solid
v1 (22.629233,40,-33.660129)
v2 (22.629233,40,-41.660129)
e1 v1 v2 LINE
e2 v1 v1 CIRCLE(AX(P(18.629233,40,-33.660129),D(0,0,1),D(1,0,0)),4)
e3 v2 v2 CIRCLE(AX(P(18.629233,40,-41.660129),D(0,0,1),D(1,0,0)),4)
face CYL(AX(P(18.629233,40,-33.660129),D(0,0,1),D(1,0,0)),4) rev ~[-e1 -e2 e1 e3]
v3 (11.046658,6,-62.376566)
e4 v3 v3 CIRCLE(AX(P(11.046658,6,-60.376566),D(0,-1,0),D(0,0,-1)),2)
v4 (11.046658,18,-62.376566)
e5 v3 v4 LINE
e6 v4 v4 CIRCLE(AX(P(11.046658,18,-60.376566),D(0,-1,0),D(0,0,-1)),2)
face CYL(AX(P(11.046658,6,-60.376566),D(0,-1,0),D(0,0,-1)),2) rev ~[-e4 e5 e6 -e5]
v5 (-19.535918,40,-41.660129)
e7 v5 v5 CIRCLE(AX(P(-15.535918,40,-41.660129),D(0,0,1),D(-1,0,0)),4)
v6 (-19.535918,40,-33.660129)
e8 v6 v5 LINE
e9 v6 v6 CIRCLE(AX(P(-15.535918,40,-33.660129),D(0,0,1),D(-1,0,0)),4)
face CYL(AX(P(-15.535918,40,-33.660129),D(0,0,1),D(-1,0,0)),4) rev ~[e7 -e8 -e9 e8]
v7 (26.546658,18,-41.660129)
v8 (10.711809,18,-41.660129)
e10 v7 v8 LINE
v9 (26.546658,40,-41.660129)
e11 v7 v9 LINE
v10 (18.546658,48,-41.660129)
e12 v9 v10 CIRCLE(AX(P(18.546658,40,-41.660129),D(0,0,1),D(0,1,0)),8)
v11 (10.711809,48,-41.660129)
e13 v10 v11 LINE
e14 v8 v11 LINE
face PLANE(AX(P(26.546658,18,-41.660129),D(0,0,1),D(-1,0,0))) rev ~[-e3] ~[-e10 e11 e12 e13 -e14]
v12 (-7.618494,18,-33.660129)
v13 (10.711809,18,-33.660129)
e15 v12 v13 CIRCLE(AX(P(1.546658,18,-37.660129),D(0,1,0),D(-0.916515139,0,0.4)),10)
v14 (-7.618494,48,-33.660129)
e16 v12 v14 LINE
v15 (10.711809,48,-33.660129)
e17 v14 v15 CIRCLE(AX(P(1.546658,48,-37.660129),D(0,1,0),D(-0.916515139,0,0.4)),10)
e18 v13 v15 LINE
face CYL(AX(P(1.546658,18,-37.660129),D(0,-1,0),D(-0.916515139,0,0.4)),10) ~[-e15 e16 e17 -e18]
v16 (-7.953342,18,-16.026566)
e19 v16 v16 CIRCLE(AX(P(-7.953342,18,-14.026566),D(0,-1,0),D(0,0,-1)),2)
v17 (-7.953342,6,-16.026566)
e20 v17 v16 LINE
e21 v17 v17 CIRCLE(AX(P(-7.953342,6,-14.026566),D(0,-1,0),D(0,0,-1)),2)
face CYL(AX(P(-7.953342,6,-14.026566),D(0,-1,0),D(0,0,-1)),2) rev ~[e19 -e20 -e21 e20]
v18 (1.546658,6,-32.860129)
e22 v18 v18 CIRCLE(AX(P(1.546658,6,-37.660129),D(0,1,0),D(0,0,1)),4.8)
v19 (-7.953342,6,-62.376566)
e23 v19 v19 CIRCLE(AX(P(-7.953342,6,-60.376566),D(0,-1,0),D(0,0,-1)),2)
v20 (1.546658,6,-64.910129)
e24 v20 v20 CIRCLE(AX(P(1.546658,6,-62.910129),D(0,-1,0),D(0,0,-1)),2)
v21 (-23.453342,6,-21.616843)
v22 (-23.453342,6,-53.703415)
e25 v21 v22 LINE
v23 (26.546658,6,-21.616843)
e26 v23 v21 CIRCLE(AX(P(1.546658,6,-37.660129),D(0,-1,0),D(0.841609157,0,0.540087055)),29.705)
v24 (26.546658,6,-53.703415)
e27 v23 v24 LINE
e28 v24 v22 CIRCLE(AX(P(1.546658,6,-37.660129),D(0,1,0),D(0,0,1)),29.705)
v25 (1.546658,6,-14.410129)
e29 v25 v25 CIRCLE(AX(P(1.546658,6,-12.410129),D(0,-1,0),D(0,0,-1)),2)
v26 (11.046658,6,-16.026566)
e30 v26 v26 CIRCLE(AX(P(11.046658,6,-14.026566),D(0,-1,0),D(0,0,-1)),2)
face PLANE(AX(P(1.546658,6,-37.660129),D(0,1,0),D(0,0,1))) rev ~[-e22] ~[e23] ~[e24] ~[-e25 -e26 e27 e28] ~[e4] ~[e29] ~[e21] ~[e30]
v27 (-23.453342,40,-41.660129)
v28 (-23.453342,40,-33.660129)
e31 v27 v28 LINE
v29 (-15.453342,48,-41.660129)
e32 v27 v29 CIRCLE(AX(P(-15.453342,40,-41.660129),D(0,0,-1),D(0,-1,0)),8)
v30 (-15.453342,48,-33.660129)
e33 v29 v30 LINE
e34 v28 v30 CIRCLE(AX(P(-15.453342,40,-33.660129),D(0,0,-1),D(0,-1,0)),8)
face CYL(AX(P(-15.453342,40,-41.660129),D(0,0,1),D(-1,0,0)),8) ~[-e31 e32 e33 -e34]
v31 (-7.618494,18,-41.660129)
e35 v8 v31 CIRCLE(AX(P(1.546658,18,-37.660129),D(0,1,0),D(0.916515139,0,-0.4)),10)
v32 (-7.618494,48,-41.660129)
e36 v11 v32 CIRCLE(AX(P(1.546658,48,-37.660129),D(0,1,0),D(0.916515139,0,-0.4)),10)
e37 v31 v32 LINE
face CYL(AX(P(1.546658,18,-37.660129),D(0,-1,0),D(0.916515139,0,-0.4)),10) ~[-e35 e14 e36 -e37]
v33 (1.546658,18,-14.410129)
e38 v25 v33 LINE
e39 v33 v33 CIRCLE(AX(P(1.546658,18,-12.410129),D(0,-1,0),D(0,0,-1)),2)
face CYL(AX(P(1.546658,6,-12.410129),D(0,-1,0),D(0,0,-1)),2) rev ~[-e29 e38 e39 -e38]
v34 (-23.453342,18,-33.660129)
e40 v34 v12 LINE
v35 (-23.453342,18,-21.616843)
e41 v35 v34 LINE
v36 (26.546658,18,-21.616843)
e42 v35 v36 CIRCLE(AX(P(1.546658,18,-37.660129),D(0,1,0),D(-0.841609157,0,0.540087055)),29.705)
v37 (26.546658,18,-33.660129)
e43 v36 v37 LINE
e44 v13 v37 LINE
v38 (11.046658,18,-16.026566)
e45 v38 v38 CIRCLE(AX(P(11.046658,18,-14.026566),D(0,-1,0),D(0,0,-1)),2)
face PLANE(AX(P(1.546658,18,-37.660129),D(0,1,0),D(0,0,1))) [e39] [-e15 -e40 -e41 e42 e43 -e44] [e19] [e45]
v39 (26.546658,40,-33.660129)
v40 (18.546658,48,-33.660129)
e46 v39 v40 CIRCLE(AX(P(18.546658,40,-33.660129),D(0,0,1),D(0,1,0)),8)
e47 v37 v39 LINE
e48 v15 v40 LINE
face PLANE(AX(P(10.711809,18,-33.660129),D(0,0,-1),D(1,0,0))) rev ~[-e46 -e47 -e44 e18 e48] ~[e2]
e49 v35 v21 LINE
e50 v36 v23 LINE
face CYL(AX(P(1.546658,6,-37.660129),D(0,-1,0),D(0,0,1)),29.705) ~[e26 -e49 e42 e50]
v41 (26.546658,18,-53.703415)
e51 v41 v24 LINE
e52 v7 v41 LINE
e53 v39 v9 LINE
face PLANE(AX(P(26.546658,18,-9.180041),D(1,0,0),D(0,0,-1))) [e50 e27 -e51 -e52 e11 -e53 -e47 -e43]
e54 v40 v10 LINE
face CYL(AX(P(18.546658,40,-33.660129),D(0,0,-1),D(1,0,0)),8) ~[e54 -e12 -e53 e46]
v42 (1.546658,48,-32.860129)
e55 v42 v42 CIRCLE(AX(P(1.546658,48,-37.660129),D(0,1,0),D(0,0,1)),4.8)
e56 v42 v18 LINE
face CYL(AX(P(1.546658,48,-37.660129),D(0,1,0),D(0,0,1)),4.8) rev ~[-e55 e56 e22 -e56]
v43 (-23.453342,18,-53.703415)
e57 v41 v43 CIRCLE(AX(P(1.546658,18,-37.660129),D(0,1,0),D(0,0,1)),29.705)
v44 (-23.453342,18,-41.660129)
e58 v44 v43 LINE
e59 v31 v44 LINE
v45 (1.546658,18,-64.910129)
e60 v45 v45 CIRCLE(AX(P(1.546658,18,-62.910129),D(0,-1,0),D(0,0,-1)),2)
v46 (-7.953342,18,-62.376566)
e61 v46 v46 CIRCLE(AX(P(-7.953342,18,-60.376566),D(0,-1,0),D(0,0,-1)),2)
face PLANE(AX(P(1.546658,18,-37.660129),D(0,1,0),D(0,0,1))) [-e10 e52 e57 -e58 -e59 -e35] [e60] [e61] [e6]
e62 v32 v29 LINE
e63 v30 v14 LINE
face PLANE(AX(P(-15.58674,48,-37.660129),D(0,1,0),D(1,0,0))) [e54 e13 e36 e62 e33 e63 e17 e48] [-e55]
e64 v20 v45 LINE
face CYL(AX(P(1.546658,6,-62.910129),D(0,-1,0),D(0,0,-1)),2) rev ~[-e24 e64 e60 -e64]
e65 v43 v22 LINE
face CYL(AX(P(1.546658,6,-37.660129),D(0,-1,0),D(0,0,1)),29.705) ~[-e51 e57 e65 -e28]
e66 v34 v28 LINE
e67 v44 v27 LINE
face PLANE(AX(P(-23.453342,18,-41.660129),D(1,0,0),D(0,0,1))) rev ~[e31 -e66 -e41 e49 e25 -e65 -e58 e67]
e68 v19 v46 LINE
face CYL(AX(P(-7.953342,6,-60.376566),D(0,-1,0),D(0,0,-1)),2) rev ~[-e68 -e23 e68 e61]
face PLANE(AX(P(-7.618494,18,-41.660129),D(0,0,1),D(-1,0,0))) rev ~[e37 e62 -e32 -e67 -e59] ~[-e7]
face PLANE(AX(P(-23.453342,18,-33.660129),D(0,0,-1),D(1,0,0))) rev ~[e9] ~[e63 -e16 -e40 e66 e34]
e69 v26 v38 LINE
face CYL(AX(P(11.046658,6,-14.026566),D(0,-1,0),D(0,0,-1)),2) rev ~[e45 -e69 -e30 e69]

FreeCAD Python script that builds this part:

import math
import FreeCAD as App
import Part
import Sketcher

V = App.Vector
Q = App.Units.Quantity


def edges_at(feature, points):
    """Names of the edges that pass closest to the given points."""
    edges = feature.Shape.Edges
    near = lambda p: min(range(len(edges)), key=lambda i: edges[i].distToShape(Part.Vertex(*p))[0])
    return sorted({f"Edge{near(p) + 1}" for p in points})


def add_polygon(sketch, points):
    """Adds a closed chain of lines whose ends are joined by coincident constraints."""
    first, n = sketch.GeometryCount, len(points)
    for a, b in zip(points, points[1:] + points[:1]):
        sketch.addGeometry(Part.LineSegment(App.Vector(*a, 0), App.Vector(*b, 0)), False)
    for i in range(n):
        sketch.addConstraint(Sketcher.Constraint("Coincident", first + i, 2, first + (i + 1) % n, 1))

doc = App.newDocument("Part")
body = doc.addObject("PartDesign::Body", "Body")

# Sketch on XZ plane
sketch1 = body.newObject("Sketcher::SketchObject", "Sketch")
sketch1.AttachmentSupport = (doc.getObject("XZ_Plane"), [""])
sketch1.MapMode = "FlatFace"
sketch1.AttachmentOffset = App.Placement(V(0, 0, -6), App.Rotation())
sketch1.addGeometry(Part.Circle(V(2, -38, 0), V(0, 0, 1), 30), False)
sketch1.addConstraint([
    Sketcher.Constraint("Diameter", 0, Q("59.41 mm")),
    Sketcher.Constraint("DistanceY", 0, 3, -1, 1, Q("37.660129 mm")),
    Sketcher.Constraint("DistanceX", -1, 1, 0, 3, Q("1.546658 mm")),
])
pad1 = body.newObject("PartDesign::Pad", "Pad")
pad1.Profile = sketch1
pad1.Length = 12
pad1.Reversed = True

# Sketch on XZ plane
sketch2 = body.newObject("Sketcher::SketchObject", "Sketch001")
sketch2.AttachmentSupport = (doc.getObject("XZ_Plane"), [""])
sketch2.MapMode = "FlatFace"
sketch2.AttachmentOffset = App.Placement(V(0, 0, -18), App.Rotation())
sketch2.addGeometry([
    Part.LineSegment(V(-8, -42, 0), V(-23, -42, 0)),  # 0
    Part.LineSegment(V(-23, -42, 0), V(-23, -34, 0)),  # 1
    Part.LineSegment(V(-23, -34, 0), V(-8, -34, 0)),  # 2
    Part.ArcOfCircle(Part.Circle(V(2, -38, 0), V(0, 0, 1), 10), math.radians(24), math.radians(156)),  # 3
    Part.LineSegment(V(11, -34, 0), V(27, -34, 0)),  # 4
    Part.LineSegment(V(27, -34, 0), V(27, -42, 0)),  # 5
    Part.LineSegment(V(27, -42, 0), V(11, -42, 0)),  # 6
    Part.ArcOfCircle(Part.Circle(V(2, -38, 0), V(0, 0, 1), 10), math.radians(-156), math.radians(-24)),  # 7
], False)
sketch2.addConstraint([
    Sketcher.Constraint("Coincident", 0, 2, 1, 1),
    Sketcher.Constraint("Coincident", 1, 2, 2, 1),
    Sketcher.Constraint("Coincident", 2, 2, 3, 2),
    Sketcher.Constraint("Coincident", 3, 1, 4, 1),
    Sketcher.Constraint("Coincident", 4, 2, 5, 1),
    Sketcher.Constraint("Coincident", 5, 2, 6, 1),
    Sketcher.Constraint("Coincident", 6, 2, 7, 2),
    Sketcher.Constraint("Coincident", 7, 1, 0, 1),
    Sketcher.Constraint("Horizontal", 0),
    Sketcher.Constraint("Vertical", 1),
    Sketcher.Constraint("Horizontal", 2),
    Sketcher.Constraint("Horizontal", 4),
    Sketcher.Constraint("Vertical", 5),
    Sketcher.Constraint("Horizontal", 6),
    Sketcher.Constraint("Coincident", 7, 3, 3, 3),
    Sketcher.Constraint("Equal", 3, 7),
    Sketcher.Constraint("Horizontal", 2, 2, 3, 1),
    Sketcher.Constraint("Horizontal", 0, 2, 5, 2),
    Sketcher.Constraint("Vertical", 3, 1, 6, 2),
    Sketcher.Constraint("Equal", 2, 4),
    Sketcher.Constraint("Radius", 3, Q("10 mm")),
    Sketcher.Constraint("DistanceY", 1, 1, 1, 2, Q("8 mm")),
    Sketcher.Constraint("DistanceX", 0, 2, 3, 3, Q("25 mm")),
    Sketcher.Constraint("DistanceY", 3, 3, -1, 1, Q("37.660129 mm")),
    Sketcher.Constraint("DistanceX", -1, 1, 3, 1, Q("10.711809 mm")),
])
pad2 = body.newObject("PartDesign::Pad", "Pad001")
pad2.Profile = sketch2
pad2.Length = 30
pad2.Reversed = True

# Sketch on XZ plane
sketch3 = body.newObject("Sketcher::SketchObject", "Sketch002")
sketch3.AttachmentSupport = (doc.getObject("XZ_Plane"), [""])
sketch3.MapMode = "FlatFace"
sketch3.AttachmentOffset = App.Placement(V(0, 0, -48), App.Rotation())
sketch3.addGeometry(Part.Circle(V(1.5, -37.7, 0), V(0, 0, 1), 4.8), False)
sketch3.addConstraint([
    Sketcher.Constraint("Diameter", 0, Q("9.6 mm")),
    Sketcher.Constraint("DistanceY", 0, 3, -1, 1, Q("37.660129 mm")),
    Sketcher.Constraint("DistanceX", -1, 1, 0, 3, Q("1.546658 mm")),
])
pocket1 = body.newObject("PartDesign::Pocket", "Pocket")
pocket1.Profile = sketch3
pocket1.Type = "ThroughAll"
pocket1.Reversed = True

# Sketch on XZ plane
sketch4 = body.newObject("Sketcher::SketchObject", "Sketch003")
sketch4.AttachmentSupport = (doc.getObject("XZ_Plane"), [""])
sketch4.MapMode = "FlatFace"
sketch4.AttachmentOffset = App.Placement(V(0, 0, -6), App.Rotation())
sketch4.addGeometry([
    Part.Circle(V(-8, -14, 0), V(0, 0, 1), 2),  # 0
    Part.Circle(V(1.5, -12.4, 0), V(0, 0, 1), 2),  # 1
    Part.Circle(V(11, -14, 0), V(0, 0, 1), 2),  # 2
    Part.Circle(V(11, -60.4, 0), V(0, 0, 1), 2),  # 3
    Part.Circle(V(1.5, -62.9, 0), V(0, 0, 1), 2),  # 4
    Part.Circle(V(-8, -60.4, 0), V(0, 0, 1), 2),  # 5
], False)
sketch4.addConstraint([
    Sketcher.Constraint("Equal", 0, 1),
    Sketcher.Constraint("Equal", 1, 2),
    Sketcher.Constraint("Equal", 2, 3),
    Sketcher.Constraint("Equal", 3, 4),
    Sketcher.Constraint("Equal", 4, 5),
    Sketcher.Constraint("Horizontal", 0, 3, 2, 3),
    Sketcher.Constraint("Horizontal", 3, 3, 5, 3),
    Sketcher.Constraint("Vertical", 2, 3, 3, 3),
    Sketcher.Constraint("Vertical", 1, 3, 4, 3),
    Sketcher.Constraint("Vertical", 0, 3, 5, 3),
    Sketcher.Constraint("Diameter", 0, Q("4 mm")),
    Sketcher.Constraint("DistanceX", 0, 3, 2, 3, Q("19 mm")),
    Sketcher.Constraint("DistanceX", 0, 3, 1, 3, Q("9.5 mm")),
    Sketcher.Constraint("DistanceY", 4, 3, 1, 3, Q("50.5 mm")),
    Sketcher.Constraint("DistanceY", 3, 3, 2, 3, Q("46.35 mm")),
    Sketcher.Constraint("DistanceY", 1, 3, -1, 1, Q("12.410129 mm")),
    Sketcher.Constraint("DistanceX", 0, 3, -1, 1, Q("7.953342 mm")),
    Sketcher.Constraint("DistanceY", 0, 3, -1, 1, Q("14.026566 mm")),
])
pocket2 = body.newObject("PartDesign::Pocket", "Pocket001")
pocket2.Profile = sketch4
pocket2.Type = "ThroughAll"

# Sketch on XY plane
sketch5 = body.newObject("Sketcher::SketchObject", "Sketch004")
sketch5.AttachmentSupport = (doc.getObject("XY_Plane"), [""])
sketch5.MapMode = "FlatFace"
sketch5.AttachmentOffset = App.Placement(V(0, 0, -33.660129), App.Rotation())
sketch5.addGeometry(Part.Circle(V(18.6, 40, 0), V(0, 0, 1), 4), False)
sketch5.addConstraint([
    Sketcher.Constraint("Diameter", 0, Q("8 mm")),
    Sketcher.Constraint("DistanceY", -1, 1, 0, 3, Q("40 mm")),
    Sketcher.Constraint("DistanceX", -1, 1, 0, 3, Q("18.629233 mm")),
])
pocket3 = body.newObject("PartDesign::Pocket", "Pocket002")
pocket3.Profile = sketch5
pocket3.Type = "UpToFirst"

# Sketch on XY plane
sketch6 = body.newObject("Sketcher::SketchObject", "Sketch005")
sketch6.AttachmentSupport = (doc.getObject("XY_Plane"), [""])
sketch6.MapMode = "FlatFace"
sketch6.AttachmentOffset = App.Placement(V(0, 0, -33.660129), App.Rotation())
sketch6.addGeometry(Part.Circle(V(-15.5, 40, 0), V(0, 0, 1), 4), False)
sketch6.addConstraint([
    Sketcher.Constraint("Diameter", 0, Q("8 mm")),
    Sketcher.Constraint("DistanceY", -1, 1, 0, 3, Q("40 mm")),
    Sketcher.Constraint("DistanceX", 0, 3, -1, 1, Q("15.535918 mm")),
])
pocket4 = body.newObject("PartDesign::Pocket", "Pocket003")
pocket4.Profile = sketch6
pocket4.Type = "UpToFirst"
doc.recompute()

fillet = body.newObject("PartDesign::Fillet", "Fillet")
fillet.Base = (pocket4, edges_at(pocket4, [(26.547, 48, -37.66), (-23.453, 48, -37.66)]))
fillet.Radius = 8

# Sketch on XZ plane
sketch7 = body.newObject("Sketcher::SketchObject", "Sketch006")
sketch7.AttachmentSupport = (doc.getObject("XZ_Plane"), [""])
sketch7.MapMode = "FlatFace"
sketch7.AttachmentOffset = App.Placement(V(0, 0, -18), App.Rotation())
add_polygon(sketch7, [(27, -65), (27, -9), (40, -9), (40, -65)])  # lines 0-3
add_polygon(sketch7, [(-35, -71), (-35, -9), (-23, -9), (-23, -71)])  # lines 4-7
sketch7.addConstraint([
    Sketcher.Constraint("Vertical", 0),
    Sketcher.Constraint("Horizontal", 1),
    Sketcher.Constraint("Vertical", 2),
    Sketcher.Constraint("Horizontal", 3),
    Sketcher.Constraint("Vertical", 4),
    Sketcher.Constraint("Horizontal", 5),
    Sketcher.Constraint("Vertical", 6),
    Sketcher.Constraint("Horizontal", 7),
    Sketcher.Constraint("Horizontal", 1, 2, 4, 2),
    Sketcher.Constraint("DistanceX", 5, 2, 0, 2, Q("50 mm")),
    Sketcher.Constraint("DistanceX", 5, 1, 5, 2, Q("11.20761 mm")),
    Sketcher.Constraint("DistanceY", 0, 1, 0, 2, Q("56.051778 mm")),
    Sketcher.Constraint("DistanceX", -1, 1, 1, 2, Q("39.576101 mm")),
    Sketcher.Constraint("DistanceX", 1, 1, 1, 2, Q("13.029443 mm")),
    Sketcher.Constraint("DistanceY", 4, 1, 4, 2, Q("62.108426 mm")),
    Sketcher.Constraint("DistanceY", 0, 2, -1, 1, Q("9.180041 mm")),
])
pocket5 = body.newObject("PartDesign::Pocket", "Pocket004")
pocket5.Profile = sketch7
pocket5.Type = "ThroughAll"
pocket5.Reversed = True

doc.recompute()
